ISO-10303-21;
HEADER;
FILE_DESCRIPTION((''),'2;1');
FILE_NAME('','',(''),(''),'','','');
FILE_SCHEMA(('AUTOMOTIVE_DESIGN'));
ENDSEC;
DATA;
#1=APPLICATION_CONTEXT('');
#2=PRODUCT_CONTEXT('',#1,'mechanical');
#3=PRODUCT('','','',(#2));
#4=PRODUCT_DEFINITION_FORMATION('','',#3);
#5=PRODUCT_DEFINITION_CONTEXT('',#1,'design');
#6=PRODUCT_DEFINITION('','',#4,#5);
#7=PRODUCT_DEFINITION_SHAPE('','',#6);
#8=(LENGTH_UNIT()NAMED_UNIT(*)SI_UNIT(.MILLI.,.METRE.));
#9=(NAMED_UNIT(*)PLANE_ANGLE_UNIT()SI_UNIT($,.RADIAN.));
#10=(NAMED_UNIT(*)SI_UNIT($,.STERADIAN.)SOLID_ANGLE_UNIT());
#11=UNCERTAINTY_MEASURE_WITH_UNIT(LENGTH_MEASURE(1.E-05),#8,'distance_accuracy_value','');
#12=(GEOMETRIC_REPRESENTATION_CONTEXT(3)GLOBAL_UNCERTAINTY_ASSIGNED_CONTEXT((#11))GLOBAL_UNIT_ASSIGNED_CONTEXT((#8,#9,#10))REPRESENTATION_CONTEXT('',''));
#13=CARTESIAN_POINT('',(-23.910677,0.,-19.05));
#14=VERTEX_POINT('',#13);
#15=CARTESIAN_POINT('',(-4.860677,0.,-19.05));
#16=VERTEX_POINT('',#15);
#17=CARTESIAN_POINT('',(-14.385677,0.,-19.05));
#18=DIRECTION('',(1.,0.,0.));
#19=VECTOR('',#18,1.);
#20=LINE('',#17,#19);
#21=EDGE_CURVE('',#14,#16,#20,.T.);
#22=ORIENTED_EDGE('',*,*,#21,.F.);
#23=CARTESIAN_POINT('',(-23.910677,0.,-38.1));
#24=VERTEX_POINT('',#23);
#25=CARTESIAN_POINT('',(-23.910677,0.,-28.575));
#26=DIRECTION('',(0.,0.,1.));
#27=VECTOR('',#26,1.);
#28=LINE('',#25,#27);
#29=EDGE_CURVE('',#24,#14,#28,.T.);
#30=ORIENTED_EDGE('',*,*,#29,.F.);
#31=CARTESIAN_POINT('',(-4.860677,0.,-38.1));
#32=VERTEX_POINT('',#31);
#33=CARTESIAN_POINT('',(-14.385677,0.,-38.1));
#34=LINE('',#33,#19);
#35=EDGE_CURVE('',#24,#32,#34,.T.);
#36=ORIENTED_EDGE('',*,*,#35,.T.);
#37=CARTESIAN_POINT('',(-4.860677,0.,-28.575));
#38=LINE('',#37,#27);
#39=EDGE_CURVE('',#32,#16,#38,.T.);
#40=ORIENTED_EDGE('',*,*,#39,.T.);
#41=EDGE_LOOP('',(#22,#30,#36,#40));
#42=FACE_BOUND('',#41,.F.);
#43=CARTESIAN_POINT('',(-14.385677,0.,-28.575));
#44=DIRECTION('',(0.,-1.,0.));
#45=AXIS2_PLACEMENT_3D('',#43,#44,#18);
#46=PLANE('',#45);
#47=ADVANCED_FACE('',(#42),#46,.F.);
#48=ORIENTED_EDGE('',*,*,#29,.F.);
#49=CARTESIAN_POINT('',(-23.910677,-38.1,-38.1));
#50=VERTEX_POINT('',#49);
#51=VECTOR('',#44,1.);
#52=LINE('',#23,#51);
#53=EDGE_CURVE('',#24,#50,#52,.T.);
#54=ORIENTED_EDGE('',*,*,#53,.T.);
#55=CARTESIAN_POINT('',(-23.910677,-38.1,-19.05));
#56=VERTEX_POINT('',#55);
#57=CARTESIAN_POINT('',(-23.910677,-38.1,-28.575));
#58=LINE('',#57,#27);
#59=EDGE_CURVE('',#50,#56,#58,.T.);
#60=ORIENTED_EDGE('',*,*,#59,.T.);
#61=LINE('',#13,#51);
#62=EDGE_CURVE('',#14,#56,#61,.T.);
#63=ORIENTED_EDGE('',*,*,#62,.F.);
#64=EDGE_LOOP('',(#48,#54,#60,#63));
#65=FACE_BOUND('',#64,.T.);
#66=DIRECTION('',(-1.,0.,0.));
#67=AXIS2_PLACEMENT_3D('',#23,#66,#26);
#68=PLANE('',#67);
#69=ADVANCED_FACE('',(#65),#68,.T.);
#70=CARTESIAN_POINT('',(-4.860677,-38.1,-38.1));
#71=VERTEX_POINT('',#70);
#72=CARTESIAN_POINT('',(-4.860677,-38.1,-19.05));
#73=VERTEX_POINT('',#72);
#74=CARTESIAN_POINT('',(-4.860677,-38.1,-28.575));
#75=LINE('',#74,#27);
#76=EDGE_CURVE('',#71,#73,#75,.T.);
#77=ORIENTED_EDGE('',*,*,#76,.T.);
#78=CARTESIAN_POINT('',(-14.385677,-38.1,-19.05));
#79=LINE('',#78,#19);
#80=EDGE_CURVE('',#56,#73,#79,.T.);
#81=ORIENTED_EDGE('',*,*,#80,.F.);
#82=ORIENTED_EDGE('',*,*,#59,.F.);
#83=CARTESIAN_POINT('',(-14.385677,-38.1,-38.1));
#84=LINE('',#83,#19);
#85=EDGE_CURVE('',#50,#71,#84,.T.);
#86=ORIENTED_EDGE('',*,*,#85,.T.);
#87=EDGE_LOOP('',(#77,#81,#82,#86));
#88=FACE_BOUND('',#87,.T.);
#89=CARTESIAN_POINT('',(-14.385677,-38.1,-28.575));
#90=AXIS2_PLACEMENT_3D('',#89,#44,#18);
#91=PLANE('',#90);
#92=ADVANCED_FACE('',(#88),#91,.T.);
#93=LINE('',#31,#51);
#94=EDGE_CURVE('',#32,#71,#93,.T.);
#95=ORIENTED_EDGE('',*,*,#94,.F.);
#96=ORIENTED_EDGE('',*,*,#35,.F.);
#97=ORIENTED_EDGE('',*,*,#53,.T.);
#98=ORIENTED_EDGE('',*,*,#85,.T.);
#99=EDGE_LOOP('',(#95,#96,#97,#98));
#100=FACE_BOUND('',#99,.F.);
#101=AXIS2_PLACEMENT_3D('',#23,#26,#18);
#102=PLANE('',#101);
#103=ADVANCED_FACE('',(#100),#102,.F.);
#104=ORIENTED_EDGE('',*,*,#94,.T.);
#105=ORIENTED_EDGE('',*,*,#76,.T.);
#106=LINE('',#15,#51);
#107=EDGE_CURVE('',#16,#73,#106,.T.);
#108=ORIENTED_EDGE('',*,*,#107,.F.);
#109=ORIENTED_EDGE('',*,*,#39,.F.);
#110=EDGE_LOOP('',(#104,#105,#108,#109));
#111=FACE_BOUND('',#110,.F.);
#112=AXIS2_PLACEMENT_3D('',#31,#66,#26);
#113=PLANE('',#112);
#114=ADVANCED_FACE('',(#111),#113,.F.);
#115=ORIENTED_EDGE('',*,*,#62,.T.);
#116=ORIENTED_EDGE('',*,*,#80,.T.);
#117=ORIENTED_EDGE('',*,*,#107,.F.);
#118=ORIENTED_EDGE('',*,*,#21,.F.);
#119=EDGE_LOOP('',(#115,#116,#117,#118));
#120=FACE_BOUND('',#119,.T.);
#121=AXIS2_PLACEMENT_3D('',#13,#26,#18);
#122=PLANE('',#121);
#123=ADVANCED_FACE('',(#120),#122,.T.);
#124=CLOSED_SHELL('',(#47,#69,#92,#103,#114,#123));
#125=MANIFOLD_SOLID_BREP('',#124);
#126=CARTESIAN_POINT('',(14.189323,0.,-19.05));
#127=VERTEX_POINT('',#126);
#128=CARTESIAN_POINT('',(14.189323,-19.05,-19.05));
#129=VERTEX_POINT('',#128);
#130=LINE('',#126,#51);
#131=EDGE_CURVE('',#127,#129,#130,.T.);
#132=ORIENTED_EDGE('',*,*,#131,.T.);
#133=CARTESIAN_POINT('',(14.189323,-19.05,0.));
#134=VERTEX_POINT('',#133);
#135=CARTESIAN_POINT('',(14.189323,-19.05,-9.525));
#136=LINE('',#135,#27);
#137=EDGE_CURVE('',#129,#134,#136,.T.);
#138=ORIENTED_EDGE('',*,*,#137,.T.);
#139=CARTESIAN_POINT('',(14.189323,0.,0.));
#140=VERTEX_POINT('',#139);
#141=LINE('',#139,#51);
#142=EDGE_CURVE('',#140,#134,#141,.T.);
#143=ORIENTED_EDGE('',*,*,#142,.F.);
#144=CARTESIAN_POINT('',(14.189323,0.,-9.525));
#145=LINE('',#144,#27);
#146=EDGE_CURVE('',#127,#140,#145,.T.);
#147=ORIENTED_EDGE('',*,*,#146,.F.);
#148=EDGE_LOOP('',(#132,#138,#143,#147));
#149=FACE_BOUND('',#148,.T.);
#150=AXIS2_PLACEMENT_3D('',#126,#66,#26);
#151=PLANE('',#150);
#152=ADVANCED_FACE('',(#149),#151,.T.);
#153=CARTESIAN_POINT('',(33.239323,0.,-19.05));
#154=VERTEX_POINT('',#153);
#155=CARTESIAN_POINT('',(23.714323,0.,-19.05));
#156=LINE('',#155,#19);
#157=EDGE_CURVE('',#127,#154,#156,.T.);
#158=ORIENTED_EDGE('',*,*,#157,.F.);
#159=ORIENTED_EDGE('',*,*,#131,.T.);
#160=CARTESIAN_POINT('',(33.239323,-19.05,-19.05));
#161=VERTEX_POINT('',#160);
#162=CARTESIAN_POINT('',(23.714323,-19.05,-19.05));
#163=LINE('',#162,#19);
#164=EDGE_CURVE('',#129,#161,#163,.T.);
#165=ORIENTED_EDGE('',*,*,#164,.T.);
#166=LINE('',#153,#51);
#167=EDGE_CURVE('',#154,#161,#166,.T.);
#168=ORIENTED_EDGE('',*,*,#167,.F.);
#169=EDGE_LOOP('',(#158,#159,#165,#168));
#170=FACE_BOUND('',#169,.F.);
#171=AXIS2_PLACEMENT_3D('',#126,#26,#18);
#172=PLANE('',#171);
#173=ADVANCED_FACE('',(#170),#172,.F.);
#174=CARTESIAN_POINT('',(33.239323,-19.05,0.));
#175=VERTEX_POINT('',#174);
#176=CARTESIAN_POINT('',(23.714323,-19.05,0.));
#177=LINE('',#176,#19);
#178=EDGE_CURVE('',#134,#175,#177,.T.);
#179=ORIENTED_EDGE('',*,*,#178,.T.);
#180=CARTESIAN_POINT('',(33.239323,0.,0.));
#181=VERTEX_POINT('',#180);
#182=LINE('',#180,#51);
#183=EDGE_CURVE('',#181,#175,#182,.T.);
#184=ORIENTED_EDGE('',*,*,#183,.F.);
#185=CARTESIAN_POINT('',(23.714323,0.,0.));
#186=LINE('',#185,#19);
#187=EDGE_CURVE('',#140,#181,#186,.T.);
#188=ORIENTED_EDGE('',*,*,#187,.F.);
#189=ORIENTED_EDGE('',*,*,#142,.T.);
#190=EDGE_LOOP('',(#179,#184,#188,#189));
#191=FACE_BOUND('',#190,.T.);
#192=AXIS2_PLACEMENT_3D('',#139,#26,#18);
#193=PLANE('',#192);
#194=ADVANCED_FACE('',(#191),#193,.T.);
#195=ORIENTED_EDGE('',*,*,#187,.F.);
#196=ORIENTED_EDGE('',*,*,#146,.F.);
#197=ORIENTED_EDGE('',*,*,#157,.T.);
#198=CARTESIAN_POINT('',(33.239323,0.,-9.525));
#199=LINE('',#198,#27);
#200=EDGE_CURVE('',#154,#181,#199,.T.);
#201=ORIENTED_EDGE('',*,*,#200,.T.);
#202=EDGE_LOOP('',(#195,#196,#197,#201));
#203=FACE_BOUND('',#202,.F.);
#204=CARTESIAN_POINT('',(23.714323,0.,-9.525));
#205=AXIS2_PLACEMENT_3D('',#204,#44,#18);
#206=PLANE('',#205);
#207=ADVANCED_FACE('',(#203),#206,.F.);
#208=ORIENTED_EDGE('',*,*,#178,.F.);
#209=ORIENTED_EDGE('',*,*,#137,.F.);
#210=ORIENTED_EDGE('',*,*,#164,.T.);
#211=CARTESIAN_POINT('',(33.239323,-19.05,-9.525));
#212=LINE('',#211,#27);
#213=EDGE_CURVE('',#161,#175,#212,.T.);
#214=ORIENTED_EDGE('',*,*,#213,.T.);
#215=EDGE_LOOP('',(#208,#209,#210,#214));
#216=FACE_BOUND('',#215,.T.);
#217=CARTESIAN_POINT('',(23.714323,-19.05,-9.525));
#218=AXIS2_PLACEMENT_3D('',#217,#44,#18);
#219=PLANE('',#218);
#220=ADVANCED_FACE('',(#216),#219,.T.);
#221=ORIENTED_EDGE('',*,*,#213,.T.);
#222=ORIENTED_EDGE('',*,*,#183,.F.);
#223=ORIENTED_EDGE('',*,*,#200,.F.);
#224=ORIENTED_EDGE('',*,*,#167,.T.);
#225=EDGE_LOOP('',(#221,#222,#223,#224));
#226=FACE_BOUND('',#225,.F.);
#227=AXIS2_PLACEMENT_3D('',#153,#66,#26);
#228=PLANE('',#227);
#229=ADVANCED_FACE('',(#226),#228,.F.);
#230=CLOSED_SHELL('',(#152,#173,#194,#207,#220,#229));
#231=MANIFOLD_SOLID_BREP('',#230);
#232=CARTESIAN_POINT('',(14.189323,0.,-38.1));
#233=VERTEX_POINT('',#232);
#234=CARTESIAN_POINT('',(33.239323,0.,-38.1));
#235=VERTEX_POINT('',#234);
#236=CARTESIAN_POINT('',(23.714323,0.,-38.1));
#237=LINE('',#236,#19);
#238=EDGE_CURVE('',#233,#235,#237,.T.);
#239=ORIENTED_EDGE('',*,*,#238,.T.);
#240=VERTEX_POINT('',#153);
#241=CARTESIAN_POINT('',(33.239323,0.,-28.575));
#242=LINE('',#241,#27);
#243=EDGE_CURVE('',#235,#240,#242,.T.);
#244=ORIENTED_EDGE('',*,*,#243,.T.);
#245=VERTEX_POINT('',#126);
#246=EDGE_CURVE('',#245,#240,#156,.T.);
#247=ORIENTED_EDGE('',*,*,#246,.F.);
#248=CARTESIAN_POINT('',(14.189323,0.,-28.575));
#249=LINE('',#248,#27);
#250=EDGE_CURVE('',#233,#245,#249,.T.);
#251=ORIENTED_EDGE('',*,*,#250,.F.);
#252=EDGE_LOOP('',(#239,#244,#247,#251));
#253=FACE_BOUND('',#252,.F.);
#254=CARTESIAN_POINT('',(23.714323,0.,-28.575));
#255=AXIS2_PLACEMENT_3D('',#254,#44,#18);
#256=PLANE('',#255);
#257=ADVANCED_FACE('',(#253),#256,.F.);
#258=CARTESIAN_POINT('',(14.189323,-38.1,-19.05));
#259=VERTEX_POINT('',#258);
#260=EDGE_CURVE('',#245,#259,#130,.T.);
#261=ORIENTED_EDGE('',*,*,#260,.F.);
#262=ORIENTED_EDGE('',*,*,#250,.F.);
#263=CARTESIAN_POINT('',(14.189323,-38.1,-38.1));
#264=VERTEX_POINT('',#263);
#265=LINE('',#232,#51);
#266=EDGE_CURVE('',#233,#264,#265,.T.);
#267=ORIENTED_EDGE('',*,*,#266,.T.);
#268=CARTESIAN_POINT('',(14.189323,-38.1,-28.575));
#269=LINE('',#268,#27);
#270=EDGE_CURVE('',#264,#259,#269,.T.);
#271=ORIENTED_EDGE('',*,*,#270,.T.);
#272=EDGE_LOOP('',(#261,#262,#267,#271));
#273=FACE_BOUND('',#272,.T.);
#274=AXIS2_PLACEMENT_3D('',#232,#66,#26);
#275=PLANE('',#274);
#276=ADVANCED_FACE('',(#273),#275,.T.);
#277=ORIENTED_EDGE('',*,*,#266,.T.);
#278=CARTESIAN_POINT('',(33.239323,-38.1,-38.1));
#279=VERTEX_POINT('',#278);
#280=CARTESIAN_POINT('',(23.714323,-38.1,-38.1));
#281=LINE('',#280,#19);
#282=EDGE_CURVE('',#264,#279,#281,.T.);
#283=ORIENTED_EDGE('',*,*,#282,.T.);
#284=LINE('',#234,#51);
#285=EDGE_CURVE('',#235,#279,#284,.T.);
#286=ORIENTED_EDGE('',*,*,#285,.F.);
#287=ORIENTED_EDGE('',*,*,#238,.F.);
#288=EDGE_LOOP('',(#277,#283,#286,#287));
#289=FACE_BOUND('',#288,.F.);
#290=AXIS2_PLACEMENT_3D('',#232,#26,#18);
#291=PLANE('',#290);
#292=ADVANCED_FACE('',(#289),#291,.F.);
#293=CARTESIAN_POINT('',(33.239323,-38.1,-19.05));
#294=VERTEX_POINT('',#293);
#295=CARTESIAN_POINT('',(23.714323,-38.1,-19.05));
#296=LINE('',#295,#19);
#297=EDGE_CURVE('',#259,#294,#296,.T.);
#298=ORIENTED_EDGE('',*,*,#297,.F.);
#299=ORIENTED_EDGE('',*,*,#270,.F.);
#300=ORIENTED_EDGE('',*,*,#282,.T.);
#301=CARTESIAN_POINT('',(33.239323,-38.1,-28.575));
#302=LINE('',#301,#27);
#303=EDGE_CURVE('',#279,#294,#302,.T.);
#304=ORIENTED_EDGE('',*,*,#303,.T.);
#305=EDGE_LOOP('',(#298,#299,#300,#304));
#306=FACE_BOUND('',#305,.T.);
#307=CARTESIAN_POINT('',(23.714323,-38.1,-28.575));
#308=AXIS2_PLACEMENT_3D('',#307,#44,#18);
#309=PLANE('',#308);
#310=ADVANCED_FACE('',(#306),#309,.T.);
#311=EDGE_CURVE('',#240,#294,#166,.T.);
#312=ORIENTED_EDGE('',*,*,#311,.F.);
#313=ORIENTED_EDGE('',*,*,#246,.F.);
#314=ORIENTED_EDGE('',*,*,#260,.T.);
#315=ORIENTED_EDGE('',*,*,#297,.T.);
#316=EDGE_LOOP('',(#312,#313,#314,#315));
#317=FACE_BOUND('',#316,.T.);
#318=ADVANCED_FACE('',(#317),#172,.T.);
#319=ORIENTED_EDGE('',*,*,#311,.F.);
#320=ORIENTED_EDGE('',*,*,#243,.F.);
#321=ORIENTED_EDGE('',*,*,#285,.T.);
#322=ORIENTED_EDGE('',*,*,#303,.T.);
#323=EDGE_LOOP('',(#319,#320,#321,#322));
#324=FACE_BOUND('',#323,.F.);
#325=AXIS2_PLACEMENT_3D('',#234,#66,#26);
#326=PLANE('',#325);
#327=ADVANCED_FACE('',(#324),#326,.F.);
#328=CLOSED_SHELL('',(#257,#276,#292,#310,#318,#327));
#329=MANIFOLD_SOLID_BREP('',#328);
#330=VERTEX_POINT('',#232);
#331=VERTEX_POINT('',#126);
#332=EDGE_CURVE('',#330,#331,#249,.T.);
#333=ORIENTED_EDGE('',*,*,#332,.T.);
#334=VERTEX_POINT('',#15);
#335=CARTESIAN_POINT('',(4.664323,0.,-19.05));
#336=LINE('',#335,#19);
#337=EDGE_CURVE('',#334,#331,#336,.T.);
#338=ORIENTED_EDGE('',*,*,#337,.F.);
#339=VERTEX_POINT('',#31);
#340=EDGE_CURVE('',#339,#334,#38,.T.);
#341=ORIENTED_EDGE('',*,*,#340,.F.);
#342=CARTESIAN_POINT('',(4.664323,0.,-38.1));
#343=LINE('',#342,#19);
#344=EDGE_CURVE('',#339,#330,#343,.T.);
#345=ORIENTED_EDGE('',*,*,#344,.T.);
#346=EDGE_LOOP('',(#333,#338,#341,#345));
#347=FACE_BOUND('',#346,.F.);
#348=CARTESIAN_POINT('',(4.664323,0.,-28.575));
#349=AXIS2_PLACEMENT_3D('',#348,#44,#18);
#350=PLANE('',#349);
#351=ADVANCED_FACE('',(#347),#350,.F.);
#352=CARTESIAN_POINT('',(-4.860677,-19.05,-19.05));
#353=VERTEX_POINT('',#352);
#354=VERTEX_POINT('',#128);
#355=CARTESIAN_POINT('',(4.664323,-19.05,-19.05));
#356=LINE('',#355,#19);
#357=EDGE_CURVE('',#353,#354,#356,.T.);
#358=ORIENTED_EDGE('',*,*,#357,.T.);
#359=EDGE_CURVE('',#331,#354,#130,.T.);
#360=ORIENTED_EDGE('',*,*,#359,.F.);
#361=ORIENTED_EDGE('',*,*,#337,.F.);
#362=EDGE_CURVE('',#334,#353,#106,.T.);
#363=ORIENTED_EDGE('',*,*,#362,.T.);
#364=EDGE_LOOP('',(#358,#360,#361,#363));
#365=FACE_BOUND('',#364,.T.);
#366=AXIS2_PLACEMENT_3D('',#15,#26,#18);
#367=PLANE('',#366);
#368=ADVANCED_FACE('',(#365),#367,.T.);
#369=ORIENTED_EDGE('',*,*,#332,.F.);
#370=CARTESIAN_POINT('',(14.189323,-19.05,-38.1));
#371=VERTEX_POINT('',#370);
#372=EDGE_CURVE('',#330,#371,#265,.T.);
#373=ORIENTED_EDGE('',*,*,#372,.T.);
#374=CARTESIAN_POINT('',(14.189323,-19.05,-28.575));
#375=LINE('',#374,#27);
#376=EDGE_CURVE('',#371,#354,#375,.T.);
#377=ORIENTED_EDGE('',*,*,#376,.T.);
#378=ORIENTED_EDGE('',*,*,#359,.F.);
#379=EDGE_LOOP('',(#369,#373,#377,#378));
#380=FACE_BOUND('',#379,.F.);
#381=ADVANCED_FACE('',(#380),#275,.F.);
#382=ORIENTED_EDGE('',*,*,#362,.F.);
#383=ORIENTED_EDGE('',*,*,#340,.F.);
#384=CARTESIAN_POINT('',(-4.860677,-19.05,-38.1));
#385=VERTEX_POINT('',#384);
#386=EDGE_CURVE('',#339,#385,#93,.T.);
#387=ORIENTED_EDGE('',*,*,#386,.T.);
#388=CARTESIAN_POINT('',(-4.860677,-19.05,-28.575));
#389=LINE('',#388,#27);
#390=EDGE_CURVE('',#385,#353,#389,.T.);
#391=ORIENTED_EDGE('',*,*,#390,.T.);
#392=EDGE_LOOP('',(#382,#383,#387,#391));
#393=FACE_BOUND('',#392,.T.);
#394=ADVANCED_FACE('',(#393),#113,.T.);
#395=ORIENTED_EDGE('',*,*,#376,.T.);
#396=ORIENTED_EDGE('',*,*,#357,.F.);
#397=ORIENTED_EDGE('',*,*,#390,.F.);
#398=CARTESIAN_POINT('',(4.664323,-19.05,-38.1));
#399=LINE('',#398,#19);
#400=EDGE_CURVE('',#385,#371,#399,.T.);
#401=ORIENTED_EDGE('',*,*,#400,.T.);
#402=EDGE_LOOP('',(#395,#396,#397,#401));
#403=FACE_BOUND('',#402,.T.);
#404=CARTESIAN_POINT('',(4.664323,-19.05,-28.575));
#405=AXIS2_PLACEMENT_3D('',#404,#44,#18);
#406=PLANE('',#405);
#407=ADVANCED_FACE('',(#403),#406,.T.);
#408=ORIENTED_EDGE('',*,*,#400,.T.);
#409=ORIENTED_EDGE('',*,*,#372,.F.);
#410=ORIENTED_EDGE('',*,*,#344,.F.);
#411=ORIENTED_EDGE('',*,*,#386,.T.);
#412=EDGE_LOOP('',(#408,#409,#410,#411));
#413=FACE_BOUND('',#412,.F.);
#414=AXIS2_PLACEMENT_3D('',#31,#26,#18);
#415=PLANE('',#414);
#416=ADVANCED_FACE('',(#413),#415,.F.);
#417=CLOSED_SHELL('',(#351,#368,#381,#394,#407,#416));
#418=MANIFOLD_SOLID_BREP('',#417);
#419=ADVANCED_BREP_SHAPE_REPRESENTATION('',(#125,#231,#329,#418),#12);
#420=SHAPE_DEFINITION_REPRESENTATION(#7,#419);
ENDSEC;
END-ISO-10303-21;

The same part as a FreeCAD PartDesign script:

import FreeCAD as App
import Part
import Sketcher
from FreeCAD import Vector
Q = App.Units.Quantity

doc = App.newDocument("Part")
params = doc.addObject("Spreadsheet::Sheet", "Params")
for row, (alias, value) in enumerate([
    ("sketch1_width", "0.75 in"),
    ("pad1_length", "1.5 in"),
    ("sketch2_width", "0.75 in"),
    ("pad2_length", "0.75 in"),
], start=1):
    params.set(f"A{row}", alias)
    params.set(f"B{row}", "=" + value)
    params.setAlias(f"B{row}", alias)

body = doc.addObject("PartDesign::Body", "Body")
body.AllowCompound = True

# Sketch on XZ plane
sketch1 = doc.addObject("Sketcher::SketchObject", "Sketch")
body.addObject(sketch1)
sketch1.AttachmentSupport = (doc.XZ_Plane, [""])
sketch1.MapMode = "FlatFace"
sketch1.addGeometry(Part.LineSegment(Vector(-24, -19, 0), Vector(-24, -38, 0)), False)
sketch1.addGeometry(Part.LineSegment(Vector(-24, -38, 0), Vector(-5, -38, 0)), False)
sketch1.addGeometry(Part.LineSegment(Vector(-5, -38, 0), Vector(-5, -19, 0)), False)
sketch1.addGeometry(Part.LineSegment(Vector(-5, -19, 0), Vector(-24, -19, 0)), False)
sketch1.addGeometry(Part.LineSegment(Vector(14, -19, 0), Vector(14, -38, 0)), False)
sketch1.addGeometry(Part.LineSegment(Vector(14, -38, 0), Vector(33, -38, 0)), False)
sketch1.addGeometry(Part.LineSegment(Vector(33, -38, 0), Vector(33, -19, 0)), False)
sketch1.addGeometry(Part.LineSegment(Vector(33, -19, 0), Vector(14, -19, 0)), False)
sketch1.addConstraint(Sketcher.Constraint("Coincident", 0, 2, 1, 1))
sketch1.addConstraint(Sketcher.Constraint("Coincident", 1, 2, 2, 1))
sketch1.addConstraint(Sketcher.Constraint("Coincident", 2, 2, 3, 1))
sketch1.addConstraint(Sketcher.Constraint("Coincident", 3, 2, 0, 1))
sketch1.addConstraint(Sketcher.Constraint("Coincident", 4, 2, 5, 1))
sketch1.addConstraint(Sketcher.Constraint("Coincident", 5, 2, 6, 1))
sketch1.addConstraint(Sketcher.Constraint("Coincident", 6, 2, 7, 1))
sketch1.addConstraint(Sketcher.Constraint("Coincident", 7, 2, 4, 1))
sketch1.addConstraint(Sketcher.Constraint("Vertical", 0))
sketch1.addConstraint(Sketcher.Constraint("Horizontal", 1))
sketch1.addConstraint(Sketcher.Constraint("Vertical", 2))
sketch1.addConstraint(Sketcher.Constraint("Horizontal", 3))
sketch1.addConstraint(Sketcher.Constraint("Vertical", 4))
sketch1.addConstraint(Sketcher.Constraint("Horizontal", 5))
sketch1.addConstraint(Sketcher.Constraint("Vertical", 6))
sketch1.addConstraint(Sketcher.Constraint("Horizontal", 7))
sketch1.addConstraint(Sketcher.Constraint("Horizontal", 1, 2, 4, 2))
sketch1.addConstraint(Sketcher.Constraint("Horizontal", 3, 2, 6, 2))
sketch1.addConstraint(Sketcher.Constraint("Equal", 3, 5))
sketch1.addConstraint(Sketcher.Constraint("Equal", 7, 0))
sketch1.addConstraint(Sketcher.Constraint("DistanceX", 1, 1, 1, 2, Q("0.75 in")))
sketch1.addConstraint(Sketcher.Constraint("DistanceY", 0, 2, -1, 1, Q("1.5 in")))
sketch1.addConstraint(Sketcher.Constraint("DistanceX", 0, 2, 4, 2, Q("1.5 in")))
sketch1.addConstraint(Sketcher.Constraint("DistanceX", 0, 2, -1, 1, Q("23.910677 mm")))
sketch1.setExpression("Constraints[20]", "Params.sketch1_width")
pad1 = doc.addObject("PartDesign::Pad", "Pad")
body.addObject(pad1)
pad1.Profile = sketch1
pad1.setExpression("Length", "Params.pad1_length")
body2 = doc.addObject("PartDesign::Body", "Body001")
body2.AllowCompound = True

# Sketch on XZ plane
sketch2 = doc.addObject("Sketcher::SketchObject", "Sketch001")
body2.addObject(sketch2)
sketch2.AttachmentSupport = (doc.getObject("XZ_Plane001"), [""])
sketch2.MapMode = "FlatFace"
sketch2.addGeometry(Part.LineSegment(Vector(14, 0, 0), Vector(14, -19, 0)), False)
sketch2.addGeometry(Part.LineSegment(Vector(14, -19, 0), Vector(33, -19, 0)), False)
sketch2.addGeometry(Part.LineSegment(Vector(33, -19, 0), Vector(33, 0, 0)), False)
sketch2.addGeometry(Part.LineSegment(Vector(33, 0, 0), Vector(14, 0, 0)), False)
sketch2.addGeometry(Part.LineSegment(Vector(-5, -19, 0), Vector(-5, -38, 0)), False)
sketch2.addGeometry(Part.LineSegment(Vector(-5, -38, 0), Vector(14, -38, 0)), False)
sketch2.addGeometry(Part.LineSegment(Vector(14, -38, 0), Vector(14, -19, 0)), False)
sketch2.addGeometry(Part.LineSegment(Vector(14, -19, 0), Vector(-5, -19, 0)), False)
sketch2.addConstraint(Sketcher.Constraint("Coincident", 0, 2, 1, 1))
sketch2.addConstraint(Sketcher.Constraint("Coincident", 1, 2, 2, 1))
sketch2.addConstraint(Sketcher.Constraint("Coincident", 2, 2, 3, 1))
sketch2.addConstraint(Sketcher.Constraint("Coincident", 3, 2, 0, 1))
sketch2.addConstraint(Sketcher.Constraint("Coincident", 4, 2, 5, 1))
sketch2.addConstraint(Sketcher.Constraint("Coincident", 5, 2, 6, 1))
sketch2.addConstraint(Sketcher.Constraint("Coincident", 6, 2, 7, 1))
sketch2.addConstraint(Sketcher.Constraint("Coincident", 7, 2, 4, 1))
sketch2.addConstraint(Sketcher.Constraint("Vertical", 0))
sketch2.addConstraint(Sketcher.Constraint("Horizontal", 1))
sketch2.addConstraint(Sketcher.Constraint("Vertical", 2))
sketch2.addConstraint(Sketcher.Constraint("Horizontal", 3))
sketch2.addConstraint(Sketcher.Constraint("Vertical", 4))
sketch2.addConstraint(Sketcher.Constraint("Horizontal", 5))
sketch2.addConstraint(Sketcher.Constraint("Vertical", 6))
sketch2.addConstraint(Sketcher.Constraint("Horizontal", 7))
sketch2.addConstraint(Sketcher.Constraint("Coincident", 6, 2, 0, 2))
sketch2.addConstraint(Sketcher.Constraint("PointOnObject", 2, 2, -1))
sketch2.addConstraint(Sketcher.Constraint("Equal", 3, 5))
sketch2.addConstraint(Sketcher.Constraint("Equal", 7, 0))
sketch2.addConstraint(Sketcher.Constraint("Equal", 2, 4))
sketch2.addConstraint(Sketcher.Constraint("DistanceX", 1, 1, 1, 2, Q("0.75 in")))
sketch2.addConstraint(Sketcher.Constraint("DistanceX", -1, 1, 0, 2, Q("14.189323 mm")))
sketch2.setExpression("Constraints[21]", "Params.sketch2_width")
pad2 = doc.addObject("PartDesign::Pad", "Pad001")
body2.addObject(pad2)
pad2.Profile = sketch2
pad2.setExpression("Length", "Params.pad2_length")

doc.recompute()
